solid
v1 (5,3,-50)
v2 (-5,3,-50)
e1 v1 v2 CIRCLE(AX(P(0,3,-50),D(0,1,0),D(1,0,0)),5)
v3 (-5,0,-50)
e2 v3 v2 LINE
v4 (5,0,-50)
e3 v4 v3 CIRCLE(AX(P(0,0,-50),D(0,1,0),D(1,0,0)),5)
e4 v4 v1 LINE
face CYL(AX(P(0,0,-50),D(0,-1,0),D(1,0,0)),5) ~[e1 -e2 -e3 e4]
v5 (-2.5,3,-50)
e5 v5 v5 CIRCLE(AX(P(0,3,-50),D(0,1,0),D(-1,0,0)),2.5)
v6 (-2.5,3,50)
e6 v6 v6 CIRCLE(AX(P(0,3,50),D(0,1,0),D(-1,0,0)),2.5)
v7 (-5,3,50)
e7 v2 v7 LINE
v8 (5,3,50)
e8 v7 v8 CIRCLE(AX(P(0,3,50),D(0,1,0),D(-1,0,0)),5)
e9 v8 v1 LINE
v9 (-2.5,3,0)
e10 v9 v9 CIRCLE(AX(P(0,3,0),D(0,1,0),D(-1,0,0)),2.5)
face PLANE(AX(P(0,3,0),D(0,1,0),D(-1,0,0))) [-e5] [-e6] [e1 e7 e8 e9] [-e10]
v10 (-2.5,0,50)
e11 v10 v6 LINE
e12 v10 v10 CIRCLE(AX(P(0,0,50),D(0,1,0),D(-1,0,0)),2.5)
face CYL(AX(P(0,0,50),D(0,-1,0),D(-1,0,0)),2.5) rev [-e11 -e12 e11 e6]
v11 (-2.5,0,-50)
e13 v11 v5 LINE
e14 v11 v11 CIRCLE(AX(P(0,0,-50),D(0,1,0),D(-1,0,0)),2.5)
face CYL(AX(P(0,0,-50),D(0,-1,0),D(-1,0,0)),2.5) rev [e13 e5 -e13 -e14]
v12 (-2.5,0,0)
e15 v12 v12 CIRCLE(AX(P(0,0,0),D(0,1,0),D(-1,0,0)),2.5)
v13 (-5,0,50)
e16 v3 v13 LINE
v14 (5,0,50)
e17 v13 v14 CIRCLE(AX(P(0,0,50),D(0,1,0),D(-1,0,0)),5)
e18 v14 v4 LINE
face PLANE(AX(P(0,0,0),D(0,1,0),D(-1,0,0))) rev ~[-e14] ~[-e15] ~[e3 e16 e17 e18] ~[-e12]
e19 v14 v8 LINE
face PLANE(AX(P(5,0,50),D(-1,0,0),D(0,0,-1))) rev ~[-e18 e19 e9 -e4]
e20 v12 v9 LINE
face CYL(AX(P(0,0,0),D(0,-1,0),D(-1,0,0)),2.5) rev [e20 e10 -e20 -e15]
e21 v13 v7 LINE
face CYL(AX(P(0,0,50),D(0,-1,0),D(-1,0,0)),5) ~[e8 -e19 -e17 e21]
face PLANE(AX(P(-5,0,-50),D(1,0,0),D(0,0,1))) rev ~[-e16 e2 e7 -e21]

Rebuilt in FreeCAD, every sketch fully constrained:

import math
import FreeCAD as App
import Part
import Sketcher
from FreeCAD import Vector
Q = App.Units.Quantity

doc = App.newDocument("Part")
body = doc.addObject("PartDesign::Body", "Body")

# Sketch on XZ plane
sketch1 = body.newObject("Sketcher::SketchObject", "Sketch")
sketch1.AttachmentSupport = (doc.getObject("XZ_Plane"), [""])
sketch1.MapMode = "FlatFace"
sketch1.addGeometry(Part.ArcOfCircle(Part.Circle(Vector(0, 50, 0), Vector(0, 0, 1), 5), math.radians(0), math.radians(180)), False)
sketch1.addGeometry(Part.LineSegment(Vector(5, 50, 0), Vector(5, -50, 0)), False)
sketch1.addGeometry(Part.ArcOfCircle(Part.Circle(Vector(0, -50, 0), Vector(0, 0, 1), 5), math.radians(180), math.radians(360)), False)
sketch1.addGeometry(Part.LineSegment(Vector(-5, -50, 0), Vector(-5, 50, 0)), False)
sketch1.addGeometry(Part.Circle(Vector(0, -50, 0), Vector(0, 0, 1), 2.5), False)
sketch1.addGeometry(Part.Circle(Vector(0, 0, 0), Vector(0, 0, 1), 2.5), False)
sketch1.addGeometry(Part.Circle(Vector(0, 50, 0), Vector(0, 0, 1), 2.5), False)
sketch1.addConstraint(Sketcher.Constraint("Tangent", 0, 1, 1, 1))
sketch1.addConstraint(Sketcher.Constraint("Tangent", 1, 2, 2, 2))
sketch1.addConstraint(Sketcher.Constraint("Tangent", 2, 1, 3, 1))
sketch1.addConstraint(Sketcher.Constraint("Tangent", 3, 2, 0, 2))
sketch1.addConstraint(Sketcher.Constraint("Vertical", 1))
sketch1.addConstraint(Sketcher.Constraint("Vertical", 3))
sketch1.addConstraint(Sketcher.Constraint("Coincident", 5, 3, -1, 1))
sketch1.addConstraint(Sketcher.Constraint("Coincident", 4, 3, 2, 3))
sketch1.addConstraint(Sketcher.Constraint("Coincident", 6, 3, 0, 3))
sketch1.addConstraint(Sketcher.Constraint("Equal", 4, 5))
sketch1.addConstraint(Sketcher.Constraint("Equal", 5, 6))
sketch1.addConstraint(Sketcher.Constraint("Symmetric", 0, 3, 2, 3, -1, 1))
sketch1.addConstraint(Sketcher.Constraint("Diameter", 4, Q("5 mm")))
sketch1.addConstraint(Sketcher.Constraint("Radius", 0, Q("5 mm")))
sketch1.addConstraint(Sketcher.Constraint("DistanceY", -1, 1, 0, 3, Q("50 mm")))
pad1 = body.newObject("PartDesign::Pad", "Pad")
pad1.Profile = sketch1
pad1.Length = 3
pad1.Reversed = True

doc.recompute()
